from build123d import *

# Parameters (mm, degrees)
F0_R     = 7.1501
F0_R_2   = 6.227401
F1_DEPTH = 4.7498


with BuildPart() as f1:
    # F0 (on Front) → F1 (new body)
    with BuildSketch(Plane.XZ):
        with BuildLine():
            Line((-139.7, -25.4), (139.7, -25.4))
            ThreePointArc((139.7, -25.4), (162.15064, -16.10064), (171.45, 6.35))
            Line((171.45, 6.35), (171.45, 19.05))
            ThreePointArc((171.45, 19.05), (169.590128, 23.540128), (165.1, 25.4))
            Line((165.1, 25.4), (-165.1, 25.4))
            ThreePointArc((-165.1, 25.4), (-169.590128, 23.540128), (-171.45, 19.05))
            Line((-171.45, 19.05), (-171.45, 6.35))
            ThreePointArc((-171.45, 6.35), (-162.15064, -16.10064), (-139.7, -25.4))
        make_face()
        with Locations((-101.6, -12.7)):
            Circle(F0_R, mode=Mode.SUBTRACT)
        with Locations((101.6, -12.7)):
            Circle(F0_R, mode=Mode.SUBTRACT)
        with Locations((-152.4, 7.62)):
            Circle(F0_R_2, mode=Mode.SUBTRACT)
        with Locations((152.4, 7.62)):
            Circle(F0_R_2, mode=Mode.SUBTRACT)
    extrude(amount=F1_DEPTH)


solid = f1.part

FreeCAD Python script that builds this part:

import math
import FreeCAD as App
import Part
import Sketcher
Q = App.Units.Quantity

doc = App.newDocument("Part")
body = doc.addObject("PartDesign::Body", "Body")

# Sketch on XZ plane
sketch1 = body.newObject("Sketcher::SketchObject", "Sketch")
sketch1.AttachmentSupport = (doc.getObject("XZ_Plane"), [""])
sketch1.MapMode = "FlatFace"
sketch1.addGeometry([
    Part.LineSegment(App.Vector(-140, -25, 0), App.Vector(140, -25, 0)),  # 0
    Part.ArcOfCircle(Part.Circle(App.Vector(140, 6, 0), App.Vector(0, 0, 1), 32), math.radians(-90), math.radians(0)),  # 1
    Part.LineSegment(App.Vector(171, 6, 0), App.Vector(171, 19, 0)),  # 2
    Part.ArcOfCircle(Part.Circle(App.Vector(165, 19, 0), App.Vector(0, 0, 1), 6), math.radians(0), math.radians(90)),  # 3
    Part.LineSegment(App.Vector(165, 25, 0), App.Vector(-165, 25, 0)),  # 4
    Part.ArcOfCircle(Part.Circle(App.Vector(-165, 19, 0), App.Vector(0, 0, 1), 6), math.radians(90), math.radians(180)),  # 5
    Part.LineSegment(App.Vector(-171, 19, 0), App.Vector(-171, 6, 0)),  # 6
    Part.ArcOfCircle(Part.Circle(App.Vector(-140, 6, 0), App.Vector(0, 0, 1), 32), math.radians(-180), math.radians(-90)),  # 7
    Part.Circle(App.Vector(-102, -13, 0), App.Vector(0, 0, 1), 7),  # 8
    Part.Circle(App.Vector(102, -13, 0), App.Vector(0, 0, 1), 7),  # 9
    Part.Circle(App.Vector(-152, 8, 0), App.Vector(0, 0, 1), 6),  # 10
    Part.Circle(App.Vector(152, 8, 0), App.Vector(0, 0, 1), 6),  # 11
], False)
sketch1.addConstraint([
    Sketcher.Constraint("Tangent", 0, 2, 1, 1),
    Sketcher.Constraint("Tangent", 1, 2, 2, 1),
    Sketcher.Constraint("Tangent", 2, 2, 3, 1),
    Sketcher.Constraint("Tangent", 3, 2, 4, 1),
    Sketcher.Constraint("Tangent", 4, 2, 5, 1),
    Sketcher.Constraint("Tangent", 5, 2, 6, 1),
    Sketcher.Constraint("Tangent", 6, 2, 7, 1),
    Sketcher.Constraint("Tangent", 7, 2, 0, 1),
    Sketcher.Constraint("Horizontal", 0),
    Sketcher.Constraint("Vertical", 2),
    Sketcher.Constraint("Horizontal", 4),
    Sketcher.Constraint("Vertical", 6),
    Sketcher.Constraint("Equal", 3, 5),
    Sketcher.Constraint("Equal", 1, 7),
    Sketcher.Constraint("Equal", 8, 9),
    Sketcher.Constraint("Equal", 10, 11),
    Sketcher.Constraint("Symmetric", 8, 3, 9, 3, -2),
    Sketcher.Constraint("Symmetric", 10, 3, 11, 3, -2),
    Sketcher.Constraint("DistanceX", 0, 1, 0, 2, Q("11 in")),
    Sketcher.Constraint("DistanceX", 4, 2, 4, 1, Q("13 in")),
    Sketcher.Constraint("Radius", 1, Q("1.25 in")),
    Sketcher.Constraint("Diameter", 8, Q("0.563 in")),
    Sketcher.Constraint("DistanceY", 2, 1, 2, 2, Q("0.5 in")),
    Sketcher.Constraint("DistanceX", 8, 3, -1, 1, Q("4 in")),
    Sketcher.Constraint("DistanceX", 10, 3, -1, 1, Q("6 in")),
    Sketcher.Constraint("DistanceY", 0, 2, -1, 1, Q("1 in")),
    Sketcher.Constraint("DistanceX", -1, 1, 1, 3, Q("5.5 in")),
    Sketcher.Constraint("DistanceY", 8, 3, -1, 1, Q("0.5 in")),
    Sketcher.Constraint("DistanceY", -1, 1, 10, 3, Q("0.3 in")),
    Sketcher.Constraint("Diameter", 10, Q("12.454802 mm")),
])
pad1 = body.newObject("PartDesign::Pad", "Pad")
pad1.Profile = sketch1
pad1.Length = Q("0.187 in")

doc.recompute()
